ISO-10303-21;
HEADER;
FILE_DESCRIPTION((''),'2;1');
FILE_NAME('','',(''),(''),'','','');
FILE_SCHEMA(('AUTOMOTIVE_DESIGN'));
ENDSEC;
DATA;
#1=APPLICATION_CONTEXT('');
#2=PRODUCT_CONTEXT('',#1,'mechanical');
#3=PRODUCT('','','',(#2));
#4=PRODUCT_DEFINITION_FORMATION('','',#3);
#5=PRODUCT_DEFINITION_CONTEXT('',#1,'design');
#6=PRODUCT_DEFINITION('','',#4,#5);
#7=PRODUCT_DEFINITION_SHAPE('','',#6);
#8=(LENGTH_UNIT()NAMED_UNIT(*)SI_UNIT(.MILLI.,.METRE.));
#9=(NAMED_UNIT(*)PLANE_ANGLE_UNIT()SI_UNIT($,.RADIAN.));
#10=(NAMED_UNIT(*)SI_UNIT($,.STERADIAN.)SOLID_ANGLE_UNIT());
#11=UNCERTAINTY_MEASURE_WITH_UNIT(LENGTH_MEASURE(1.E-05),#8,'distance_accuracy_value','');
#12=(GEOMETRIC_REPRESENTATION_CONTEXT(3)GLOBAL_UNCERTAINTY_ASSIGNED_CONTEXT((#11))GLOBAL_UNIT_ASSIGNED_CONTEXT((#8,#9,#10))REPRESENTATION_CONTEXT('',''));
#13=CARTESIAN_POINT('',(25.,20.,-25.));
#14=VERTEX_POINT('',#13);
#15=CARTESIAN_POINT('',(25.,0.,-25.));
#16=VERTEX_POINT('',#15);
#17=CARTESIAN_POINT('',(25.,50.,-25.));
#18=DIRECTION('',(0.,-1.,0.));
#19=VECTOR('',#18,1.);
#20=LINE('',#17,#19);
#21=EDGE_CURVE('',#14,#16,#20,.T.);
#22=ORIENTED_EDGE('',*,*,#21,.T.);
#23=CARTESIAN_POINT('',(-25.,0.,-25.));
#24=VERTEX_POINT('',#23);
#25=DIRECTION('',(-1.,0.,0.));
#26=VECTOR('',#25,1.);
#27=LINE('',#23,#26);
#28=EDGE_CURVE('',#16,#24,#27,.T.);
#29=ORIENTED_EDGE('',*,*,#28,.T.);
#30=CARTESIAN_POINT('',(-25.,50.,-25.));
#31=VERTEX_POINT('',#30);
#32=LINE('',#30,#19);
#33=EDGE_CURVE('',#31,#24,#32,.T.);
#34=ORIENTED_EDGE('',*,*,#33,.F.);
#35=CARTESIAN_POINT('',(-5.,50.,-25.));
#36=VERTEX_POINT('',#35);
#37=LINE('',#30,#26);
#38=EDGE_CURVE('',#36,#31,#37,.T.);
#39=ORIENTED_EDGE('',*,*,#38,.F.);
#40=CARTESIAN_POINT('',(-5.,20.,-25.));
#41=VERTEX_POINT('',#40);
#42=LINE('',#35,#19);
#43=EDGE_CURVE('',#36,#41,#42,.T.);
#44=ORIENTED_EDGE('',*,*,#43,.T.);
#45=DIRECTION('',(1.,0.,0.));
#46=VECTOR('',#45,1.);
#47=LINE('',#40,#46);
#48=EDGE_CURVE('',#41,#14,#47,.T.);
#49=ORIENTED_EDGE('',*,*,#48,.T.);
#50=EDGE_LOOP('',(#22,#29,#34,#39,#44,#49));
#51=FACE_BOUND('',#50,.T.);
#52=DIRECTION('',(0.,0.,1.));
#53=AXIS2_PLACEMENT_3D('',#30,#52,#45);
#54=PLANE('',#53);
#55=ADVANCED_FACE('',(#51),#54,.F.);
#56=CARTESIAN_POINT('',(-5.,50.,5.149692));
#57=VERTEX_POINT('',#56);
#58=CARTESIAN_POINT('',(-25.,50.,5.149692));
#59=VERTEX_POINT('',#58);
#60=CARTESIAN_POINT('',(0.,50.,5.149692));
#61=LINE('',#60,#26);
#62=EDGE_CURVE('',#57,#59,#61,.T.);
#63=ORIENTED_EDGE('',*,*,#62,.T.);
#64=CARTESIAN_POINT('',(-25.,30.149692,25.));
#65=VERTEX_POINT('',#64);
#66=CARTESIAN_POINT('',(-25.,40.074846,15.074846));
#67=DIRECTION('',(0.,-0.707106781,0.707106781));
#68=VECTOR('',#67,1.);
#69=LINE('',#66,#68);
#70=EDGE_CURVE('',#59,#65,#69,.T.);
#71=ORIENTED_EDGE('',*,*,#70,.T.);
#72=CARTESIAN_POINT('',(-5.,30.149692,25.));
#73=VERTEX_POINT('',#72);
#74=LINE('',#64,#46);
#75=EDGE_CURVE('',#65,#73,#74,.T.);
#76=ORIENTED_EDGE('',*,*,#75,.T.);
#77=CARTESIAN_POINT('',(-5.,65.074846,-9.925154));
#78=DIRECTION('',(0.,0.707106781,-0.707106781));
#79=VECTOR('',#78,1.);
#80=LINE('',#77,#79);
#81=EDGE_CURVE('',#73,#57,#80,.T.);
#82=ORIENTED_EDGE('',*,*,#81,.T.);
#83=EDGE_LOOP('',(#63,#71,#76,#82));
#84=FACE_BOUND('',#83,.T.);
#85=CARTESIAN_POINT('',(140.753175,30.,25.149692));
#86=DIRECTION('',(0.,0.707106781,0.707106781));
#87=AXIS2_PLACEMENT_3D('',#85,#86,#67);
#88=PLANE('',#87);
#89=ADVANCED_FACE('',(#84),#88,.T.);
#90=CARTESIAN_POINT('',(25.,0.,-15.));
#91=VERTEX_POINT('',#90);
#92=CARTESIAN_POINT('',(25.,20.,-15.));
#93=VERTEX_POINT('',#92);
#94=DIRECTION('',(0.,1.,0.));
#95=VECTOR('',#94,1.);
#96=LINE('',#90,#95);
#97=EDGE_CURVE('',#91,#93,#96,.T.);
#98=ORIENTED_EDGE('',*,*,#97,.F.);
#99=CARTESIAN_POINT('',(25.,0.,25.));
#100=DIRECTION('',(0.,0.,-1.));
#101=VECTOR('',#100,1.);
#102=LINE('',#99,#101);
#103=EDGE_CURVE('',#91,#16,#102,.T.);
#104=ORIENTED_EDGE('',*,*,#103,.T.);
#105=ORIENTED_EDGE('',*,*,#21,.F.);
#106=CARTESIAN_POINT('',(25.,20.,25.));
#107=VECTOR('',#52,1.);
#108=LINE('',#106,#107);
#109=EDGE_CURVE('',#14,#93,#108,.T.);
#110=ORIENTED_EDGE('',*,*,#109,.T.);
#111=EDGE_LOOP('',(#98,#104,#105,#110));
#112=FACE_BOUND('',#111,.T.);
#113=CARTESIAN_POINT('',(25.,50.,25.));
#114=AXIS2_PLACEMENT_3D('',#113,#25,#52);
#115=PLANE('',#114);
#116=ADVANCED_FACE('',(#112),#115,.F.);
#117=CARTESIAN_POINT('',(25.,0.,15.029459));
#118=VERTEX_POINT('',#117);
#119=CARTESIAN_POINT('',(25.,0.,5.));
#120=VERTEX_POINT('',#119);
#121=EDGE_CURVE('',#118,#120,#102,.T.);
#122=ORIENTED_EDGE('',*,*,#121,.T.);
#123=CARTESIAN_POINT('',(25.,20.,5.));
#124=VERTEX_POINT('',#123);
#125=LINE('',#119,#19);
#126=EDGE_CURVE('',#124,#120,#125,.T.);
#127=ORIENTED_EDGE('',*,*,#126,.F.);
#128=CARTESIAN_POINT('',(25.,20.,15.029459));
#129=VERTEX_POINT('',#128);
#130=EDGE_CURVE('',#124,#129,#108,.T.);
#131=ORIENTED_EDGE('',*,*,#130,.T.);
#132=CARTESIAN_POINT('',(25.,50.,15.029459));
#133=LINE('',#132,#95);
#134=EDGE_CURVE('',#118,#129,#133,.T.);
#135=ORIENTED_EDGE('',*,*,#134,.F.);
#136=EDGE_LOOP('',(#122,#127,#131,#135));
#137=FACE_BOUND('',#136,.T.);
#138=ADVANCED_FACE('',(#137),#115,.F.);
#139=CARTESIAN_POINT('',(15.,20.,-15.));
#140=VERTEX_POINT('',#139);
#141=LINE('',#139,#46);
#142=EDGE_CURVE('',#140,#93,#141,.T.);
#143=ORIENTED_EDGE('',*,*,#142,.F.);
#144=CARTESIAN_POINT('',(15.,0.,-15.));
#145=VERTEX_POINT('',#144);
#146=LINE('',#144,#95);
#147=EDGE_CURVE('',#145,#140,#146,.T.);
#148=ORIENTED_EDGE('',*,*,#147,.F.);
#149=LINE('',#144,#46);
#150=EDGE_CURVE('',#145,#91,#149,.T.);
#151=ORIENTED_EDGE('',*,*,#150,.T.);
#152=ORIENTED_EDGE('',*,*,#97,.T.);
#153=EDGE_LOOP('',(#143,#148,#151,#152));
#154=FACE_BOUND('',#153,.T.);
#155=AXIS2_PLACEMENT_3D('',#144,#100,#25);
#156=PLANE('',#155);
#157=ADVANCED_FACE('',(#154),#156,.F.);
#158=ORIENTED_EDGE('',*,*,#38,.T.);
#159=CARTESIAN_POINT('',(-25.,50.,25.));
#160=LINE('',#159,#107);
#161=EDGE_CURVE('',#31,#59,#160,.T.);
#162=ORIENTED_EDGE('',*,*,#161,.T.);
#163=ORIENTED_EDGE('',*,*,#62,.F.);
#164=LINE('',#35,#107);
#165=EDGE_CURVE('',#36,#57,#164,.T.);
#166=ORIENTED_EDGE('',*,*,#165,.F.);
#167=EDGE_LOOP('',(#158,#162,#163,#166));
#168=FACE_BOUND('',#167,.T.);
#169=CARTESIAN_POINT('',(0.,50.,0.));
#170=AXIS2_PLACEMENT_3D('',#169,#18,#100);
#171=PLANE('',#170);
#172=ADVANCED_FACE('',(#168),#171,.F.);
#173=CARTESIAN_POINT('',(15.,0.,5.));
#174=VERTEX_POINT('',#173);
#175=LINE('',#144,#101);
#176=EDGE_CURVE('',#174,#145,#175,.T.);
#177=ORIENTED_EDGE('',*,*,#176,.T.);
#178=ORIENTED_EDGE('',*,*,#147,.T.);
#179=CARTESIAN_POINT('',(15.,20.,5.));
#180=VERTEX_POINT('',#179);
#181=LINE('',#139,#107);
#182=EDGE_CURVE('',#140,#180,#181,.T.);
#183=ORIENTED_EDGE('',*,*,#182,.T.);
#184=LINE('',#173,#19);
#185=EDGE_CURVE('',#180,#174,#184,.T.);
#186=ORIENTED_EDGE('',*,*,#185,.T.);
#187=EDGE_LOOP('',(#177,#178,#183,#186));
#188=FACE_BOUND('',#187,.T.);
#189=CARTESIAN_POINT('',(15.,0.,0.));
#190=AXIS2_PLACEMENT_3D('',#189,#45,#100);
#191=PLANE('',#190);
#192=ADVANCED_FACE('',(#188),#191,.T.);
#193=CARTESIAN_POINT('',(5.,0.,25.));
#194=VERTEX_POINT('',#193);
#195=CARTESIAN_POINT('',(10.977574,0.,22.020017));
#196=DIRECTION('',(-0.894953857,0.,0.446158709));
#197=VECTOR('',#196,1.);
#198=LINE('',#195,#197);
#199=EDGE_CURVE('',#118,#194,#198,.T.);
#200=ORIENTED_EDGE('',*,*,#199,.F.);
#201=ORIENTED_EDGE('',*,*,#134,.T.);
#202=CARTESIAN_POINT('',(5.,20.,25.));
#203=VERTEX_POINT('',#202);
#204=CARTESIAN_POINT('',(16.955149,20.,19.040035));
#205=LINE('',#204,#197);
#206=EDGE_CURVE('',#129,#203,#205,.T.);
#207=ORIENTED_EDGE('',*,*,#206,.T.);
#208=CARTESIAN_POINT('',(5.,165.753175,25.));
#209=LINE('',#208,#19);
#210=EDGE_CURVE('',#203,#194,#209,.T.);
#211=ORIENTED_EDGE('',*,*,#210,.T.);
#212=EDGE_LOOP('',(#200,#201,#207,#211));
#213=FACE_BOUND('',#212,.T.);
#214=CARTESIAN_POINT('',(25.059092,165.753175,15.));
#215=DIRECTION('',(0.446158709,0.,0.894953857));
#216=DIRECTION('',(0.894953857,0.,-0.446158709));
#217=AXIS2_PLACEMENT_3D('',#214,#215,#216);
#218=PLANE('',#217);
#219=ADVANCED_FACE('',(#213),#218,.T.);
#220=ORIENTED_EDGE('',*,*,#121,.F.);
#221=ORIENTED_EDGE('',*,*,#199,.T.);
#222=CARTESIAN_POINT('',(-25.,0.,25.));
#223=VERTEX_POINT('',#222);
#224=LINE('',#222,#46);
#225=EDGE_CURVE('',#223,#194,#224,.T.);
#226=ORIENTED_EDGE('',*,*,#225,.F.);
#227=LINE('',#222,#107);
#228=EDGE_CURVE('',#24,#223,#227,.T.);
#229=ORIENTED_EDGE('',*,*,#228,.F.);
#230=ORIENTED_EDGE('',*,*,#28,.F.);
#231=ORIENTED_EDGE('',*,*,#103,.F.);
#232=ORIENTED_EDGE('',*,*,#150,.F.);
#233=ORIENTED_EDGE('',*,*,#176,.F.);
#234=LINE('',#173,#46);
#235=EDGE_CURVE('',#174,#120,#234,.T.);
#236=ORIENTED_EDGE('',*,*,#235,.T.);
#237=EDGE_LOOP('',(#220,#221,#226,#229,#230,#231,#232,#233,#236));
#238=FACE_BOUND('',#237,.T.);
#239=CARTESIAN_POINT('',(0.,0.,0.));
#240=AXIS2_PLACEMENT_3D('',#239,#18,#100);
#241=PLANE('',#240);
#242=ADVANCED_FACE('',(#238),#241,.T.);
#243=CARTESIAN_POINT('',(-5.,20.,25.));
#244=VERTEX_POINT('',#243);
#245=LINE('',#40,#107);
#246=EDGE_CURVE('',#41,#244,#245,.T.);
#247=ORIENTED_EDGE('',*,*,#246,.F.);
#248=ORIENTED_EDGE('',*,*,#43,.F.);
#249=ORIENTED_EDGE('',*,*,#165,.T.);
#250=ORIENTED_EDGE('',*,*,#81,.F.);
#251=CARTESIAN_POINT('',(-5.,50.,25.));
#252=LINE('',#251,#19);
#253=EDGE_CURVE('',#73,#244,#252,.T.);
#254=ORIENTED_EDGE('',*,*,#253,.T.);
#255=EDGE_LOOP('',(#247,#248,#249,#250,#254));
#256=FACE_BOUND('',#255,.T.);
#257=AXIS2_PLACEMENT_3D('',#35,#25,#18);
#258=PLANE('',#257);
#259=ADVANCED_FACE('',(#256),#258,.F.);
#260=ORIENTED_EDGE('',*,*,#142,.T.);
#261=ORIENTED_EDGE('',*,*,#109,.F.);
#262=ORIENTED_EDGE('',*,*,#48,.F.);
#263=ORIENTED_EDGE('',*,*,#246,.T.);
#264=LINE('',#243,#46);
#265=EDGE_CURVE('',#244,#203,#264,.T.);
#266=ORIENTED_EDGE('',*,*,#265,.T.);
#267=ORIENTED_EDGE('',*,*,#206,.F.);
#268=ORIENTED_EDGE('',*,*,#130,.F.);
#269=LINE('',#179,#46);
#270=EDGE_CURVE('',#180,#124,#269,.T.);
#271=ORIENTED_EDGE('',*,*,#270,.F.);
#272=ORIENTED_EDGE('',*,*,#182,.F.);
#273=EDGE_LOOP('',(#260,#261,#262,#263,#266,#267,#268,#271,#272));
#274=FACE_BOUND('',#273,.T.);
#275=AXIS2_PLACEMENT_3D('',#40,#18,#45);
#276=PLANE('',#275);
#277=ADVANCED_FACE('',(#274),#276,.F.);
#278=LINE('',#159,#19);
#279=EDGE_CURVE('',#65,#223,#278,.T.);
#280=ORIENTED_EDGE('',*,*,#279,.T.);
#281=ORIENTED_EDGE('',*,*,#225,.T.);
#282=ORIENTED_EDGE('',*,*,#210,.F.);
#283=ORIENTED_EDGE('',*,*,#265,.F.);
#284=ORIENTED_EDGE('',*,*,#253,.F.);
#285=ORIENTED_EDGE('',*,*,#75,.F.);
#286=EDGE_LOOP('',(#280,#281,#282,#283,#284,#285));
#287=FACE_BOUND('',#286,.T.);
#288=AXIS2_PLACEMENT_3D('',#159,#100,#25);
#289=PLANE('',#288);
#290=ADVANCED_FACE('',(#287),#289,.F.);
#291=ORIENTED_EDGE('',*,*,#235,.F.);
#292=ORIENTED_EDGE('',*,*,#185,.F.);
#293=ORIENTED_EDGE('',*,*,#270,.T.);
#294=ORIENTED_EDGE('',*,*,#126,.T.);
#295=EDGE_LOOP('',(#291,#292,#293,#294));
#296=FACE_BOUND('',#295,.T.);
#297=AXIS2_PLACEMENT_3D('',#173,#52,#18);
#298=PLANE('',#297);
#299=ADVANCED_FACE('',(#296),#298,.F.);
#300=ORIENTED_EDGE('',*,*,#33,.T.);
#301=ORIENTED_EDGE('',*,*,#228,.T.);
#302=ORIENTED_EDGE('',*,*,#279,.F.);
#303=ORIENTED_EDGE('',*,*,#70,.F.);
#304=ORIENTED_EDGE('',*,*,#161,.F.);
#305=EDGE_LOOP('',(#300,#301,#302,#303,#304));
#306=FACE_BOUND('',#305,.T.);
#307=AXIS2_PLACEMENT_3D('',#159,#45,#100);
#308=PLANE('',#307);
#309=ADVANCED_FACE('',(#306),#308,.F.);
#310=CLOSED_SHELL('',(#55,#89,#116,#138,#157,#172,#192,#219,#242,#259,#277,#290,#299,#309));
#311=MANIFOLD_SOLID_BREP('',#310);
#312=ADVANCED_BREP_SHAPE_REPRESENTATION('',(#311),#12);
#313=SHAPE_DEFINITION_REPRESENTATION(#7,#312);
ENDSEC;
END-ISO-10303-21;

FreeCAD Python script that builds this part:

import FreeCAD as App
import Part
import Sketcher
from FreeCAD import Vector
Q = App.Units.Quantity


def add_polygon(sketch, points):
    """Adds a closed chain of lines whose ends are joined by coincident constraints."""
    first, n = sketch.GeometryCount, len(points)
    for a, b in zip(points, points[1:] + points[:1]):
        sketch.addGeometry(Part.LineSegment(App.Vector(*a, 0), App.Vector(*b, 0)), False)
    for i in range(n):
        sketch.addConstraint(Sketcher.Constraint("Coincident", first + i, 2, first + (i + 1) % n, 1))

doc = App.newDocument("Part")
body = doc.addObject("PartDesign::Body", "Body")

# Sketch on XZ plane
sketch1 = body.newObject("Sketcher::SketchObject", "Sketch")
sketch1.AttachmentSupport = (doc.getObject("XZ_Plane"), [""])
sketch1.MapMode = "FlatFace"
add_polygon(sketch1, [(-25, -25), (-25, 25), (25, 25), (25, -25)])  # lines 0-3
sketch1.addConstraint([
    Sketcher.Constraint("Vertical", 0),
    Sketcher.Constraint("Horizontal", 1),
    Sketcher.Constraint("Vertical", 2),
    Sketcher.Constraint("Horizontal", 3),
    Sketcher.Constraint("Symmetric", 0, 2, 2, 2, -1, 1),
    Sketcher.Constraint("Equal", 3, 0),
    Sketcher.Constraint("DistanceX", 1, 1, 1, 2, Q("50 mm")),
])
pad1 = body.newObject("PartDesign::Pad", "Pad")
pad1.Profile = sketch1
pad1.Length = 50
pad1.Reversed = True

# Sketch on XY plane
sketch2 = body.newObject("Sketcher::SketchObject", "Sketch001")
sketch2.AttachmentSupport = (doc.getObject("XY_Plane"), [""])
sketch2.MapMode = "FlatFace"
sketch2.AttachmentOffset = App.Placement(Vector(0, 0, 25), App.Rotation())
add_polygon(sketch2, [(-5, 50), (-5, 20), (25, 20), (25, 50)])  # lines 0-3
sketch2.addConstraint([
    Sketcher.Constraint("Vertical", 0),
    Sketcher.Constraint("Horizontal", 1),
    Sketcher.Constraint("Horizontal", 3),
    Sketcher.Constraint("Equal", 3, 0),
    Sketcher.Constraint("DistanceX", 3, 2, 3, 1, Q("30 mm")),
    Sketcher.Constraint("DistanceX", 0, 2, -1, 1, Q("5 mm")),
    Sketcher.Constraint("DistanceY", -1, 1, 0, 2, Q("20 mm")),
    Sketcher.Constraint("DistanceX", 1, 1, 1, 2, Q("30.055792 mm")),
])
pocket1 = body.newObject("PartDesign::Pocket", "Pocket")
pocket1.Profile = sketch2
pocket1.Type = "ThroughAll"

# Sketch on YZ plane
sketch3 = body.newObject("Sketcher::SketchObject", "Sketch002")
sketch3.AttachmentSupport = (doc.getObject("YZ_Plane"), [""])
sketch3.MapMode = "FlatFace"
sketch3.AttachmentOffset = App.Placement(Vector(0, 0, 25), App.Rotation())
add_polygon(sketch3, [(20, 5), (0, 5), (0, -15), (20, -15)])  # lines 0-3
sketch3.addConstraint([
    Sketcher.Constraint("Horizontal", 0),
    Sketcher.Constraint("Vertical", 1),
    Sketcher.Constraint("Horizontal", 2),
    Sketcher.Constraint("Vertical", 3),
    Sketcher.Constraint("PointOnObject", 0, 2, -2),
    Sketcher.Constraint("Equal", 2, 1),
    Sketcher.Constraint("DistanceX", 0, 2, 0, 1, Q("20 mm")),
    Sketcher.Constraint("DistanceY", -1, 1, 0, 2, Q("5 mm")),
])
pocket2 = body.newObject("PartDesign::Pocket", "Pocket001")
pocket2.Profile = sketch3
pocket2.Length = 10

# Sketch on YZ plane
sketch4 = body.newObject("Sketcher::SketchObject", "Sketch003")
sketch4.AttachmentSupport = (doc.getObject("YZ_Plane"), [""])
sketch4.MapMode = "FlatFace"
sketch4.AttachmentOffset = App.Placement(Vector(0, 0, -5), App.Rotation())
add_polygon(sketch4, [(-60, 115), (140, -85), (319, 95), (120, 294)])  # lines 0-3
sketch4.addConstraint([
    Sketcher.Constraint("Perpendicular", 0, 1),
    Sketcher.Constraint("Perpendicular", 1, 2),
    Sketcher.Constraint("Perpendicular", 2, 3),
    Sketcher.Constraint("Angle", 0, Q("-45 deg")),
    Sketcher.Constraint("Distance", 1, Q("253.751719 mm")),
    Sketcher.Constraint("DistanceY", 0, 2, -1, 1, Q("84.714781 mm")),
    Sketcher.Constraint("DistanceX", -1, 1, 2, 2, Q("119.714781 mm")),
    Sketcher.Constraint("Distance", 0, Q("282.247687 mm")),
])
pocket3 = body.newObject("PartDesign::Pocket", "Pocket002")
pocket3.Profile = sketch4
pocket3.Type = "ThroughAll"
pocket3.Midplane = True

# Sketch on XZ plane
sketch5 = body.newObject("Sketcher::SketchObject", "Sketch004")
sketch5.AttachmentSupport = (doc.getObject("XZ_Plane"), [""])
sketch5.MapMode = "FlatFace"
sketch5.AttachmentOffset = App.Placement(Vector(0, 0, -20), App.Rotation())
add_polygon(sketch5, [(149, -47), (25, 15), (5, 25), (-119, 87), (5, 334), (272, 201)])  # lines 0-5
sketch5.addConstraint([
    Sketcher.Constraint("Parallel", 0, 1),
    Sketcher.Constraint("Parallel", 1, 2),
    Sketcher.Constraint("Perpendicular", 2, 3),
    Sketcher.Constraint("Perpendicular", 3, 4),
    Sketcher.Constraint("Perpendicular", 4, 5),
    Sketcher.Constraint("Equal", 0, 2),
    Sketcher.Constraint("DistanceY", -1, 1, 0, 2, Q("15 mm")),
    Sketcher.Constraint("DistanceX", -1, 1, 1, 2, Q("5 mm")),
    Sketcher.Constraint("DistanceY", -1, 1, 1, 2, Q("25 mm")),
    Sketcher.Constraint("DistanceY", 2, 2, 4, 2, Q("114.006401 mm")),
    Sketcher.Constraint("Distance", 1, Q("22.413549 mm")),
    Sketcher.Constraint("DistanceY", -1, 1, 3, 2, Q("333.923292 mm")),
])
pocket4 = body.newObject("PartDesign::Pocket", "Pocket003")
pocket4.Profile = sketch5
pocket4.Type = "ThroughAll"
pocket4.Midplane = True

doc.recompute()
